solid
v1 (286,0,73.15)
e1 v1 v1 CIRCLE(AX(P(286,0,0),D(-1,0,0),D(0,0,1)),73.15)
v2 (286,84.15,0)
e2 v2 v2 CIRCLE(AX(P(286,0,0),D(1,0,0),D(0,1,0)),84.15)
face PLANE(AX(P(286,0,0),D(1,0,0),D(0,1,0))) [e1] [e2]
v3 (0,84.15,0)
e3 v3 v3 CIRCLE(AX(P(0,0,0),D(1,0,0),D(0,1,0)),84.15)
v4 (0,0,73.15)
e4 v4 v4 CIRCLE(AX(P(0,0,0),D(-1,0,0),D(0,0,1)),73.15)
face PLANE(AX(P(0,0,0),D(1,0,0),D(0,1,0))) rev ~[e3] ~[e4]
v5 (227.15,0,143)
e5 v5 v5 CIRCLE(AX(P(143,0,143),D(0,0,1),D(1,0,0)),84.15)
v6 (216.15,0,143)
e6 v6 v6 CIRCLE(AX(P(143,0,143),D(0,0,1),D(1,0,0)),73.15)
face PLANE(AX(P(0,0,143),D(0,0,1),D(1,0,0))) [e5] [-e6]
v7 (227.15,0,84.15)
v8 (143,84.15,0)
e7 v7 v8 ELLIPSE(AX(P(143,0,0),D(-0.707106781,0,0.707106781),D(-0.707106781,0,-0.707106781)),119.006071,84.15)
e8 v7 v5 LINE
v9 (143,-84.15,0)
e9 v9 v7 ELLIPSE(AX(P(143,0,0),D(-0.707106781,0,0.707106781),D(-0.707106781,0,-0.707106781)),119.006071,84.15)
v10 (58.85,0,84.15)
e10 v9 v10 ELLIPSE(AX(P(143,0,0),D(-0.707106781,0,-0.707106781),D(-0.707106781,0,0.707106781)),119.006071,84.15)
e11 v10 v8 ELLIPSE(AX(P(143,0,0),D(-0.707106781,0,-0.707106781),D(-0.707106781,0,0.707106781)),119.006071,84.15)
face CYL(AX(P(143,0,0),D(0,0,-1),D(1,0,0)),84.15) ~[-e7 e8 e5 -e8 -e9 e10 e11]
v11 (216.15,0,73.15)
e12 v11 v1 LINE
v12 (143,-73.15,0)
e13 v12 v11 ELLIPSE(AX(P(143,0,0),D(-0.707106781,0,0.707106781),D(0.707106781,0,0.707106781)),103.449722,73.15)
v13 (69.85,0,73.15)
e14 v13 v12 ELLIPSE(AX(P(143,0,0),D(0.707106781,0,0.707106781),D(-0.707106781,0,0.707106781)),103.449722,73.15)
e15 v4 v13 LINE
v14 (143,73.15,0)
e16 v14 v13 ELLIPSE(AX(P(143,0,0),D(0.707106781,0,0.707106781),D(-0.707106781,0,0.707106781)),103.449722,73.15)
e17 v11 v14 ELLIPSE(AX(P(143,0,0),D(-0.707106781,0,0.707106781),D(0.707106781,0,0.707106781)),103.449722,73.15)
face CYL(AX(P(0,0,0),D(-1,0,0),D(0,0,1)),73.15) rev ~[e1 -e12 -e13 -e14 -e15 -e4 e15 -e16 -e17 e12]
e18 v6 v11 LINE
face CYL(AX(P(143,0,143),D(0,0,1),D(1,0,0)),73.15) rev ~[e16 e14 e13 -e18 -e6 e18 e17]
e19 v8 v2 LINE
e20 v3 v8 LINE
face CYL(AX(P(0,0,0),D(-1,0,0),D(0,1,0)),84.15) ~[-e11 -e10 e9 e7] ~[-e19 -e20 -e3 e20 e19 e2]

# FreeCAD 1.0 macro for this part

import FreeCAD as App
import Part
import Sketcher

doc = App.newDocument("Part")
body = doc.addObject("PartDesign::Body", "Body")

sketch1 = doc.addObject("Sketcher::SketchObject", "Sketch")
body.addObject(sketch1)
sketch1.AttachmentSupport = (doc.YZ_Plane, [""])
sketch1.MapMode = "FlatFace"
sketch1.addGeometry(Part.Circle(App.Vector(0, 0, 0), App.Vector(0, 0, 1), 84.15), False)
sketch1.addConstraint(Sketcher.Constraint("Coincident", 0, 3, -1, 1))
sketch1.addConstraint(Sketcher.Constraint("Diameter", 0, 168.3))
pad1 = doc.addObject("PartDesign::Pad", "Pad")
body.addObject(pad1)
pad1.Profile = sketch1
pad1.Length = 286

sketch2 = doc.addObject("Sketcher::SketchObject", "Sketch001")
body.addObject(sketch2)
sketch2.AttachmentSupport = (doc.XY_Plane, [""])
sketch2.MapMode = "FlatFace"
sketch2.addGeometry(Part.Circle(App.Vector(143, 0, 0), App.Vector(0, 0, 1), 84.15), False)
sketch2.addConstraint(Sketcher.Constraint("PointOnObject", 0, 3, -1))
sketch2.addConstraint(Sketcher.Constraint("Diameter", 0, 168.3))
sketch2.addConstraint(Sketcher.Constraint("DistanceX", -1, 1, 0, 3, 143.0))
pad2 = doc.addObject("PartDesign::Pad", "Pad001")
body.addObject(pad2)
pad2.Profile = sketch2
pad2.Length = 143

sketch3 = doc.addObject("Sketcher::SketchObject", "Sketch002")
body.addObject(sketch3)
sketch3.AttachmentSupport = (doc.YZ_Plane, [""])
sketch3.MapMode = "FlatFace"
sketch3.addGeometry(Part.Circle(App.Vector(0, 0, 0), App.Vector(0, 0, 1), 73.15), False)
sketch3.addConstraint(Sketcher.Constraint("Coincident", 0, 3, -1, 1))
sketch3.addConstraint(Sketcher.Constraint("Diameter", 0, 146.3))
pocket1 = doc.addObject("PartDesign::Pocket", "Pocket")
body.addObject(pocket1)
pocket1.Profile = sketch3
pocket1.Type = "ThroughAll"
pocket1.Reversed = True

sketch4 = doc.addObject("Sketcher::SketchObject", "Sketch003")
body.addObject(sketch4)
sketch4.AttachmentSupport = (doc.XY_Plane, [""])
sketch4.MapMode = "FlatFace"
sketch4.AttachmentOffset = App.Placement(App.Vector(0, 0, 143), App.Rotation())
sketch4.addGeometry(Part.Circle(App.Vector(143, 0, 0), App.Vector(0, 0, 1), 73.15), False)
sketch4.addConstraint(Sketcher.Constraint("PointOnObject", 0, 3, -1))
sketch4.addConstraint(Sketcher.Constraint("Diameter", 0, 146.3))
sketch4.addConstraint(Sketcher.Constraint("DistanceX", -1, 1, 0, 3, 143.0))
pocket2 = doc.addObject("PartDesign::Pocket", "Pocket001")
body.addObject(pocket2)
pocket2.Profile = sketch4
pocket2.Type = "UpToFirst"

doc.recompute()
